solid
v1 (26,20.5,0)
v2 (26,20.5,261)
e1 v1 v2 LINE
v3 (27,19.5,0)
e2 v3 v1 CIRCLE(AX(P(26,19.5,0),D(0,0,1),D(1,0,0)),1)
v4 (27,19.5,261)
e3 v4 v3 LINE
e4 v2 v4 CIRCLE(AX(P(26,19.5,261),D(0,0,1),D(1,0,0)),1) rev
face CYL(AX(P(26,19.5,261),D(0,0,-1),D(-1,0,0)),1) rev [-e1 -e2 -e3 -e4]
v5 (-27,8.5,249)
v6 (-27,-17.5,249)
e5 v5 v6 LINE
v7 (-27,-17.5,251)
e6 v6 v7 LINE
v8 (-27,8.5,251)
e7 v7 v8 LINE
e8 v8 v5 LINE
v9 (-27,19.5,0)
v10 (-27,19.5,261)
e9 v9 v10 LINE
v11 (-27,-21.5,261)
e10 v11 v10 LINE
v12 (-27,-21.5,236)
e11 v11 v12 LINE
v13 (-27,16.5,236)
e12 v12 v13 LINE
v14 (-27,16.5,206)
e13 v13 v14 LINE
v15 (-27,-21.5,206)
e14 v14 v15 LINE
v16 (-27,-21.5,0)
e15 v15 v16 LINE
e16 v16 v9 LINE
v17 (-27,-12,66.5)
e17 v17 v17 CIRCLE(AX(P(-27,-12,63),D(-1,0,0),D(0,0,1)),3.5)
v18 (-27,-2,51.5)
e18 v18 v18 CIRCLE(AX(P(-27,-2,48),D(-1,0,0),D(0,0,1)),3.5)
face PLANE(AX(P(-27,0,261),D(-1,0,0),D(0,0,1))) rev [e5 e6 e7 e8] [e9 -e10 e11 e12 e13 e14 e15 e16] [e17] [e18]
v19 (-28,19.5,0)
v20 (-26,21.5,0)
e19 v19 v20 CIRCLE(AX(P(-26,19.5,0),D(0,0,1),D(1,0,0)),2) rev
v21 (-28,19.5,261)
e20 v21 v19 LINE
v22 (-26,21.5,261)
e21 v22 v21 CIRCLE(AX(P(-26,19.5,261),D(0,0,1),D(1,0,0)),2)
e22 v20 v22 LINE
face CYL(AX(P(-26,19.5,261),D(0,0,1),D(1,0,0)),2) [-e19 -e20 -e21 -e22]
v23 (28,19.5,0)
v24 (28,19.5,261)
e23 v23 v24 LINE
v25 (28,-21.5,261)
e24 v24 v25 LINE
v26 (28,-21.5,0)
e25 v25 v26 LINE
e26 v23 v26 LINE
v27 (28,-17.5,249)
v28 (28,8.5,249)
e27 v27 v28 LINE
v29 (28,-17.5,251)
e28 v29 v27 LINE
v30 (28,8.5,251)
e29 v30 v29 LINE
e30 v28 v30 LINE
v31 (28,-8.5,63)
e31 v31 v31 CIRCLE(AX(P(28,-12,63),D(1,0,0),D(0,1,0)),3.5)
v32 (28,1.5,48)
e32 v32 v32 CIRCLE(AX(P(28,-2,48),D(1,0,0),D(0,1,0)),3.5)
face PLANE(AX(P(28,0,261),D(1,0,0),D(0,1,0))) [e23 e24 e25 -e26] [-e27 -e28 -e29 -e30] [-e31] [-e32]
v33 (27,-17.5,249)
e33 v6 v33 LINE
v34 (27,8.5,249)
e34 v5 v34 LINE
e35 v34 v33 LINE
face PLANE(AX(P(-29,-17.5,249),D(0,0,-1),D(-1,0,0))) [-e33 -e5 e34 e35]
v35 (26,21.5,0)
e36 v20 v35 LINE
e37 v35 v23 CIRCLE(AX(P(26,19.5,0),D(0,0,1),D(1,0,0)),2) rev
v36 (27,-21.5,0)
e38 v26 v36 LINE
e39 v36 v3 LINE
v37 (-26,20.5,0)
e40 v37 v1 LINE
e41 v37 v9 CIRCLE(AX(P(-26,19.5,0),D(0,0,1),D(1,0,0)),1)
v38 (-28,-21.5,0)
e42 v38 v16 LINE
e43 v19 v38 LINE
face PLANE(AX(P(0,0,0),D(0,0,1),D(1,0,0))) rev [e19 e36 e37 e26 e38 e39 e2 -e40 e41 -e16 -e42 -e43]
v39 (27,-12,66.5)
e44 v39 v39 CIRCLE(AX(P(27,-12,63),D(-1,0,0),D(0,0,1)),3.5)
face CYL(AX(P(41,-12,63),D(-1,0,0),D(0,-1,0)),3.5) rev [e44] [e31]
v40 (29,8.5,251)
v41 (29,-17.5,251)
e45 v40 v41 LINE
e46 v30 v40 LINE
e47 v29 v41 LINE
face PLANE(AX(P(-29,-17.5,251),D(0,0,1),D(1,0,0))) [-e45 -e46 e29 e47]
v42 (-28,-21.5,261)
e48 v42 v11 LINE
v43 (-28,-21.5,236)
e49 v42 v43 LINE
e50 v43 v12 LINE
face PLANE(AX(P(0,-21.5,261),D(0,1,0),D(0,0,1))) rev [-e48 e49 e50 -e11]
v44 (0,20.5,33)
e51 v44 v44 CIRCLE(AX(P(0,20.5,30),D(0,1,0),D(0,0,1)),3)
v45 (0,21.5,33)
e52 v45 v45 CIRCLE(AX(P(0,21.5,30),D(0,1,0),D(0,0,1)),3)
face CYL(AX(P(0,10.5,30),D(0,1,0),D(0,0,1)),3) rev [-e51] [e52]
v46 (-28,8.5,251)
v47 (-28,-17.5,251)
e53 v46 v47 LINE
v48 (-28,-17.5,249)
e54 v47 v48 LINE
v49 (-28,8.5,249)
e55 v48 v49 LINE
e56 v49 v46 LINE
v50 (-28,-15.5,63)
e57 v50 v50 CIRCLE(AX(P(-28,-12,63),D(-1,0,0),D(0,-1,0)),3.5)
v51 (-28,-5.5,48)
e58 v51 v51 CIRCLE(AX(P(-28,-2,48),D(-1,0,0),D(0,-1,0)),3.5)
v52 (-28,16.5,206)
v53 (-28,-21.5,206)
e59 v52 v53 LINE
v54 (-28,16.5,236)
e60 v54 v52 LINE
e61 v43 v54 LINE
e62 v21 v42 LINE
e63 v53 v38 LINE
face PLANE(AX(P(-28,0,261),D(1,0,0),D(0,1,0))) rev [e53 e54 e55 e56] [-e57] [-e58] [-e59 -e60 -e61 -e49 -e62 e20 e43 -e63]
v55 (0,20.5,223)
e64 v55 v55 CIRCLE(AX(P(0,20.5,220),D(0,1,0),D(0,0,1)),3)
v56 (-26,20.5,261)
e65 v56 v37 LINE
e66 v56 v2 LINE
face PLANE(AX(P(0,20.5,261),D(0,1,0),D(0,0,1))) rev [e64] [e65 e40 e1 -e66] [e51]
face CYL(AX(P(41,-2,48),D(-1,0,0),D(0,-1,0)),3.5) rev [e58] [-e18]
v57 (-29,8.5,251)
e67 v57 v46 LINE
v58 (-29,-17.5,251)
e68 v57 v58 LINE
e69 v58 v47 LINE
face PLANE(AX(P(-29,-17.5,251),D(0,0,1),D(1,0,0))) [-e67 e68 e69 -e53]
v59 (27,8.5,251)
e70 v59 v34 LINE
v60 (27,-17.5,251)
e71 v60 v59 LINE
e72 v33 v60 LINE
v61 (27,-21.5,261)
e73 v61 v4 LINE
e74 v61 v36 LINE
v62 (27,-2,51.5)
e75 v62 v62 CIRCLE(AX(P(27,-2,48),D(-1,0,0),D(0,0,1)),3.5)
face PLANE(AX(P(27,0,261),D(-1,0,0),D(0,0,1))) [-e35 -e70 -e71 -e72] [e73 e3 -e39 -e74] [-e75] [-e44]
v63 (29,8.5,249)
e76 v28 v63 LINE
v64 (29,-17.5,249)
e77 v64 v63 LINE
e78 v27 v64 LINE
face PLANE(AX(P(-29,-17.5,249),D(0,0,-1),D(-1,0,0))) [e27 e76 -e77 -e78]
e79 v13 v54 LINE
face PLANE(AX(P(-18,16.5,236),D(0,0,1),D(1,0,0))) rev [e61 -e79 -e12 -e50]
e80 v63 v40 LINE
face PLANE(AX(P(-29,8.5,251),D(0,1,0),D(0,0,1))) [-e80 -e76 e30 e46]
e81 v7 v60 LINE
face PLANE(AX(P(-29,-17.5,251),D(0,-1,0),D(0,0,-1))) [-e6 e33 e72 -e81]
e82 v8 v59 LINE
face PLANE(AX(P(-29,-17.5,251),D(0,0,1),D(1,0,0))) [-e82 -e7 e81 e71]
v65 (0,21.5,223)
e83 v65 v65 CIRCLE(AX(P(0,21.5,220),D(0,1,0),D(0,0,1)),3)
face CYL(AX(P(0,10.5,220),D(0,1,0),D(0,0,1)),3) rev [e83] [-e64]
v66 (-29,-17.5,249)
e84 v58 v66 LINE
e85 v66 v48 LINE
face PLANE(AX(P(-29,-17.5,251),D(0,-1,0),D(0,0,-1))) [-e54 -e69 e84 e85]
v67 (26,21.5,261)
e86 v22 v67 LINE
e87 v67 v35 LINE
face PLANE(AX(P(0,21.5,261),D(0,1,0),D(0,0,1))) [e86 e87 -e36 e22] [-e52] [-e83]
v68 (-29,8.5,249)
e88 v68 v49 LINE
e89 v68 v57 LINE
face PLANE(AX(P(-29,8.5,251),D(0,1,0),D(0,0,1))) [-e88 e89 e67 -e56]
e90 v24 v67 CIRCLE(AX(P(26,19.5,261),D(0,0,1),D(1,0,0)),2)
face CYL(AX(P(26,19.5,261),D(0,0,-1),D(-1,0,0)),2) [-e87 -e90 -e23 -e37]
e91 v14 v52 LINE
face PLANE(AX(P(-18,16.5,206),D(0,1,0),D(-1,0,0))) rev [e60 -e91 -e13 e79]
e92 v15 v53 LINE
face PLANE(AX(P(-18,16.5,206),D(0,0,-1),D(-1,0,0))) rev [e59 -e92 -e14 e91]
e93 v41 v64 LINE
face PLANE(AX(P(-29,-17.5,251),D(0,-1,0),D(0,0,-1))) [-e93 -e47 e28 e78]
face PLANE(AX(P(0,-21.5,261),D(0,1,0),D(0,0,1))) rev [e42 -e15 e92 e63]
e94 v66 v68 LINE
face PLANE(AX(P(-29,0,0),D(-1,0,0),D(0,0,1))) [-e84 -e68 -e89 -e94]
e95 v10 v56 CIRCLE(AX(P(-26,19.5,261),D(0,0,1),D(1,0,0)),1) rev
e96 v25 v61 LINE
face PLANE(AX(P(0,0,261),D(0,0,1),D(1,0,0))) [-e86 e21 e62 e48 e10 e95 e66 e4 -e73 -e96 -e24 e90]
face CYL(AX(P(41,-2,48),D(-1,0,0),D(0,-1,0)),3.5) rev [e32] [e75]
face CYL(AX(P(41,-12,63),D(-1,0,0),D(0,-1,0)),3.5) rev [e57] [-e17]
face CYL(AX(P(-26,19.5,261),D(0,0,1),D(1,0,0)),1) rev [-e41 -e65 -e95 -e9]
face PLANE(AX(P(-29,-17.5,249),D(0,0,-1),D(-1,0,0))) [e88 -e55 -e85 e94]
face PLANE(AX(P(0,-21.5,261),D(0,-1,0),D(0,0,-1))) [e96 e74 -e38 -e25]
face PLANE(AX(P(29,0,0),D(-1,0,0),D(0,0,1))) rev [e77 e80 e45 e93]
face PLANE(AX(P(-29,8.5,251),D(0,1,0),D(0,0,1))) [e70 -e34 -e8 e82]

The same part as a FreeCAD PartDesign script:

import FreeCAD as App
import Part
import Sketcher

V = App.Vector


def edges_at(feature, points):
    """Names of the edges that pass closest to the given points."""
    edges = feature.Shape.Edges
    near = lambda p: min(range(len(edges)), key=lambda i: edges[i].distToShape(Part.Vertex(*p))[0])
    return sorted({f"Edge{near(p) + 1}" for p in points})


def add_polygon(sketch, points):
    """Adds a closed chain of lines whose ends are joined by coincident constraints."""
    first, n = sketch.GeometryCount, len(points)
    for a, b in zip(points, points[1:] + points[:1]):
        sketch.addGeometry(Part.LineSegment(App.Vector(*a, 0), App.Vector(*b, 0)), False)
    for i in range(n):
        sketch.addConstraint(Sketcher.Constraint("Coincident", first + i, 2, first + (i + 1) % n, 1))

doc = App.newDocument("Part")
params = doc.addObject("Spreadsheet::Sheet", "Params")
for row, (alias, value) in enumerate([
    ("sketch1_width", "1 mm"),
    ("sketch1_width2", "56 mm"),
    ("sketch1_height", "42 mm"),
    ("sketch1_height2", "43 mm"),
    ("pad1_length", "261 mm"),
    ("fillet_radius", "2 mm"),
    ("fillet2_radius", "1 mm"),
    ("sketch2_width", "26 mm"),
    ("sketch2_height", "2 mm"),
    ("pad2_length", "56 mm"),
    ("pad2_length2", "2 mm"),
    ("sketch3_diameter", "6 mm"),
    ("pocket1_length", "11 mm"),
    ("sketch4_width", "40 mm"),
    ("sketch4_height", "30 mm"),
    ("pocket2_length", "10 mm"),
    ("sketch5_diameter", "7 mm"),
    ("pocket3_length", "69 mm"),
], start=1):
    params.set(f"A{row}", alias)
    params.set(f"B{row}", "=" + value)
    params.setAlias(f"B{row}", alias)

body = doc.addObject("PartDesign::Body", "Body")

# Sketch on XY plane
sketch1 = body.newObject("Sketcher::SketchObject", "Sketch")
sketch1.AttachmentSupport = (doc.getObject("XY_Plane"), [""])
sketch1.MapMode = "FlatFace"
add_polygon(sketch1, [(27, 20.5), (27, -21.5), (28, -21.5), (28, 21.5), (-28, 21.5), (-28, -21.5), (-27, -21.5), (-27, 20.5)])  # lines 0-7
sketch1.addConstraint([
    Sketcher.Constraint("Vertical", 0),
    Sketcher.Constraint("Horizontal", 1),
    Sketcher.Constraint("Vertical", 2),
    Sketcher.Constraint("Horizontal", 3),
    Sketcher.Constraint("Vertical", 4),
    Sketcher.Constraint("Horizontal", 5),
    Sketcher.Constraint("Vertical", 6),
    Sketcher.Constraint("Horizontal", 7),
    Sketcher.Constraint("Symmetric", 1, 2, 3, 2, -1, 1),
    Sketcher.Constraint("Symmetric", 0, 2, 5, 2, -2),
    Sketcher.Constraint("DistanceX", 1, 1, 1, 2, 1.0),
    Sketcher.Constraint("DistanceX", 3, 2, 3, 1, 56.0),
    Sketcher.Constraint("DistanceY", 0, 2, 0, 1, 42.0),
    Sketcher.Constraint("DistanceY", 2, 1, 2, 2, 43.0),
])
sketch1.setExpression("Constraints[18]", "Params.sketch1_width")
sketch1.setExpression("Constraints[19]", "Params.sketch1_width2")
sketch1.setExpression("Constraints[20]", "Params.sketch1_height")
sketch1.setExpression("Constraints[21]", "Params.sketch1_height2")
pad1 = body.newObject("PartDesign::Pad", "Pad")
pad1.Profile = sketch1
pad1.setExpression("Length", "Params.pad1_length")
doc.recompute()

fillet = body.newObject("PartDesign::Fillet", "Fillet")
fillet.Base = (pad1, edges_at(pad1, [(-28, 21.5, 130.5), (28, 21.5, 130.5)]))
fillet.setExpression("Radius", "Params.fillet_radius")
doc.recompute()

fillet2 = body.newObject("PartDesign::Fillet", "Fillet001")
fillet2.Base = (fillet, edges_at(fillet, [(27, 20.5, 130.5), (-27, 20.5, 130.5)]))
fillet2.setExpression("Radius", "Params.fillet2_radius")

# Sketch on YZ plane
sketch2 = body.newObject("Sketcher::SketchObject", "Sketch001")
sketch2.AttachmentSupport = (doc.getObject("YZ_Plane"), [""])
sketch2.MapMode = "FlatFace"
sketch2.AttachmentOffset = App.Placement(V(0, 0, -27), App.Rotation())
add_polygon(sketch2, [(8.5, 251), (-17.5, 251), (-17.5, 249), (8.5, 249)])  # lines 0-3
sketch2.addConstraint([
    Sketcher.Constraint("Horizontal", 0),
    Sketcher.Constraint("Vertical", 1),
    Sketcher.Constraint("Horizontal", 2),
    Sketcher.Constraint("Vertical", 3),
    Sketcher.Constraint("DistanceX", 0, 2, 0, 1, 26.0),
    Sketcher.Constraint("DistanceY", 1, 2, 1, 1, 2.0),
    Sketcher.Constraint("DistanceY", -1, 1, 0, 2, 251.0),
    Sketcher.Constraint("DistanceX", 0, 2, -1, 1, 17.5),
])
sketch2.setExpression("Constraints[8]", "Params.sketch2_width")
sketch2.setExpression("Constraints[9]", "Params.sketch2_height")
pad2 = body.newObject("PartDesign::Pad", "Pad001")
pad2.Profile = sketch2
pad2.Type = "TwoLengths"
pad2.setExpression("Length", "Params.pad2_length")
pad2.setExpression("Length2", "Params.pad2_length2")

# Sketch on XZ plane
sketch3 = body.newObject("Sketcher::SketchObject", "Sketch002")
sketch3.AttachmentSupport = (doc.getObject("XZ_Plane"), [""])
sketch3.MapMode = "FlatFace"
sketch3.AttachmentOffset = App.Placement(V(0, 0, -21.5), App.Rotation())
sketch3.addGeometry([
    Part.Circle(V(0, 30, 0), V(0, 0, 1), 3),
    Part.Circle(V(0, 220, 0), V(0, 0, 1), 3),
], False)
sketch3.addConstraint([
    Sketcher.Constraint("Equal", 0, 1),
    Sketcher.Constraint("PointOnObject", 0, 3, -2),
    Sketcher.Constraint("PointOnObject", 1, 3, -2),
    Sketcher.Constraint("Diameter", 0, 6.0),
    Sketcher.Constraint("DistanceY", -1, 1, 0, 3, 30.0),
    Sketcher.Constraint("DistanceY", -1, 1, 1, 3, 220.0),
])
sketch3.setExpression("Constraints[3]", "Params.sketch3_diameter")
pocket1 = body.newObject("PartDesign::Pocket", "Pocket")
pocket1.Profile = sketch3
pocket1.setExpression("Length", "Params.pocket1_length")
pocket1.Reversed = True

# Sketch on YZ plane
sketch4 = body.newObject("Sketcher::SketchObject", "Sketch003")
sketch4.AttachmentSupport = (doc.getObject("YZ_Plane"), [""])
sketch4.MapMode = "FlatFace"
sketch4.AttachmentOffset = App.Placement(V(0, 0, -28), App.Rotation())
add_polygon(sketch4, [(16.5, 206), (-23.5, 206), (-23.5, 236), (16.5, 236)])  # lines 0-3
sketch4.addConstraint([
    Sketcher.Constraint("Horizontal", 0),
    Sketcher.Constraint("Vertical", 1),
    Sketcher.Constraint("Horizontal", 2),
    Sketcher.Constraint("Vertical", 3),
    Sketcher.Constraint("DistanceX", 0, 2, 0, 1, 40.0),
    Sketcher.Constraint("DistanceY", 1, 1, 1, 2, 30.0),
    Sketcher.Constraint("DistanceY", -1, 1, 0, 2, 206.0),
    Sketcher.Constraint("DistanceX", 0, 2, -1, 1, 23.5),
])
sketch4.setExpression("Constraints[8]", "Params.sketch4_width")
sketch4.setExpression("Constraints[9]", "Params.sketch4_height")
pocket2 = body.newObject("PartDesign::Pocket", "Pocket001")
pocket2.Profile = sketch4
pocket2.setExpression("Length", "Params.pocket2_length")
pocket2.Reversed = True

# Sketch on YZ plane
sketch5 = body.newObject("Sketcher::SketchObject", "Sketch004")
sketch5.AttachmentSupport = (doc.getObject("YZ_Plane"), [""])
sketch5.MapMode = "FlatFace"
sketch5.AttachmentOffset = App.Placement(V(0, 0, -28), App.Rotation())
sketch5.addGeometry([
    Part.Circle(V(-2, 48, 0), V(0, 0, 1), 3.5),
    Part.Circle(V(-12, 63, 0), V(0, 0, 1), 3.5),
], False)
sketch5.addConstraint([
    Sketcher.Constraint("Equal", 0, 1),
    Sketcher.Constraint("Diameter", 0, 7.0),
    Sketcher.Constraint("DistanceX", 0, 3, -1, 1, 2.0),
    Sketcher.Constraint("DistanceY", -1, 1, 0, 3, 48.0),
    Sketcher.Constraint("DistanceX", 1, 3, -1, 1, 12.0),
    Sketcher.Constraint("DistanceY", -1, 1, 1, 3, 63.0),
])
sketch5.setExpression("Constraints[1]", "Params.sketch5_diameter")
pocket3 = body.newObject("PartDesign::Pocket", "Pocket002")
pocket3.Profile = sketch5
pocket3.setExpression("Length", "Params.pocket3_length")
pocket3.Reversed = True

doc.recompute()
